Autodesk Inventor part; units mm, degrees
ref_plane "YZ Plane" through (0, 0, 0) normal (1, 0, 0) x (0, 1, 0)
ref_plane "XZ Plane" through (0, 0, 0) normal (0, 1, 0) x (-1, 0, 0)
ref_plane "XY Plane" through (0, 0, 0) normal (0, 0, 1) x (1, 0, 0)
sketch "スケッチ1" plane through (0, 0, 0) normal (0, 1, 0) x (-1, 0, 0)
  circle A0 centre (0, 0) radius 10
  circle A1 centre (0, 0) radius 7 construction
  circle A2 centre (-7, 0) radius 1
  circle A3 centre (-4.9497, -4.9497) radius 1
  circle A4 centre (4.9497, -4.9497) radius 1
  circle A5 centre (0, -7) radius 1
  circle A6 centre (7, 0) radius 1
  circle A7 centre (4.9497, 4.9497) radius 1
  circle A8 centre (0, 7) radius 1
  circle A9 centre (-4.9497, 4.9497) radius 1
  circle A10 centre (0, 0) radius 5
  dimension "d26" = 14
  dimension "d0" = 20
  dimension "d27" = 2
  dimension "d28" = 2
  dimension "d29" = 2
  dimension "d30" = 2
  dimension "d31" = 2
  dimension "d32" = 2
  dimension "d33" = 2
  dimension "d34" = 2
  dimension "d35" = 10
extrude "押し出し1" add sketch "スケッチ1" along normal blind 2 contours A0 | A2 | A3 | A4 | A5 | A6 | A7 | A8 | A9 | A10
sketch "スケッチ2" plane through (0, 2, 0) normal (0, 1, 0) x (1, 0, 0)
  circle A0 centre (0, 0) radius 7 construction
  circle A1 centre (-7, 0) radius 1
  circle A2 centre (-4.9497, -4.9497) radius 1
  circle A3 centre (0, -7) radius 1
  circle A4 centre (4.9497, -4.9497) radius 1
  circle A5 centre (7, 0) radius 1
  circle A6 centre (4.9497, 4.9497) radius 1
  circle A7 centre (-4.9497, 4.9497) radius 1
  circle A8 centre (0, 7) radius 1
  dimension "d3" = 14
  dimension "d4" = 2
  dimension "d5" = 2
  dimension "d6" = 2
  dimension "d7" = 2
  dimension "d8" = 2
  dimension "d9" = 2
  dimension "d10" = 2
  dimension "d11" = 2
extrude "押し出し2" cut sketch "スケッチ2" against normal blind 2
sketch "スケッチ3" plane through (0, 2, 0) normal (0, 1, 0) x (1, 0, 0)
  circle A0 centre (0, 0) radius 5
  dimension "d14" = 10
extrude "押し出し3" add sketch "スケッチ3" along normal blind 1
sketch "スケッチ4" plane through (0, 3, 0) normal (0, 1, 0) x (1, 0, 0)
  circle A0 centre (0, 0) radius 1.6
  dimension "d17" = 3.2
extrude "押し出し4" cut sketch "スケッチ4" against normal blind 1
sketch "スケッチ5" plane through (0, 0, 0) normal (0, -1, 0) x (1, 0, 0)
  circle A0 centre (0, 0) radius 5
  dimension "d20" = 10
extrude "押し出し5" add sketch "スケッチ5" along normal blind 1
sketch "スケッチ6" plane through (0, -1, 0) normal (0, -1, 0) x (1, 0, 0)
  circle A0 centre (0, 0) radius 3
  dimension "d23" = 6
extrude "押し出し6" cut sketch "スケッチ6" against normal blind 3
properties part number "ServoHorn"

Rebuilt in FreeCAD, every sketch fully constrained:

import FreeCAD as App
import Part
import Sketcher
from FreeCAD import Vector

doc = App.newDocument("Part")
body = doc.addObject("PartDesign::Body", "Body")

sketch1 = body.newObject("Sketcher::SketchObject", "Sketch")
sketch1.AttachmentSupport = (doc.getObject("XZ_Plane"), [""])
sketch1.MapMode = "FlatFace"
sketch1.addGeometry(Part.Circle(Vector(0, 0, 0), Vector(0, 0, 1), 10), False)
sketch1.addConstraint([
    Sketcher.Constraint("Coincident", 0, 3, -1, 1),
    Sketcher.Constraint("Diameter", 0, 20.0),
])
pad1 = body.newObject("PartDesign::Pad", "Pad")
pad1.Profile = sketch1
pad1.Length = 2
pad1.Reversed = True

sketch2 = body.newObject("Sketcher::SketchObject", "Sketch001")
sketch2.AttachmentSupport = (doc.getObject("XZ_Plane"), [""])
sketch2.MapMode = "FlatFace"
sketch2.AttachmentOffset = App.Placement(Vector(0, 0, -2), App.Rotation())
sketch2.addGeometry([
    Part.Circle(Vector(-7, 0, 0), Vector(0, 0, 1), 1),
    Part.Circle(Vector(-4.9, 4.9, 0), Vector(0, 0, 1), 1),
    Part.Circle(Vector(0, 7, 0), Vector(0, 0, 1), 1),
    Part.Circle(Vector(4.9, 4.9, 0), Vector(0, 0, 1), 1),
    Part.Circle(Vector(7, 0, 0), Vector(0, 0, 1), 1),
    Part.Circle(Vector(4.9, -4.9, 0), Vector(0, 0, 1), 1),
    Part.Circle(Vector(-4.9, -4.9, 0), Vector(0, 0, 1), 1),
    Part.Circle(Vector(0, -7, 0), Vector(0, 0, 1), 1),
], False)
sketch2.addConstraint([
    Sketcher.Constraint("Equal", 0, 1),
    Sketcher.Constraint("Equal", 1, 2),
    Sketcher.Constraint("Equal", 2, 3),
    Sketcher.Constraint("Equal", 3, 4),
    Sketcher.Constraint("Equal", 4, 5),
    Sketcher.Constraint("Equal", 5, 6),
    Sketcher.Constraint("Equal", 6, 7),
    Sketcher.Constraint("Symmetric", 0, 3, 4, 3, -1, 1),
    Sketcher.Constraint("Symmetric", 1, 3, 5, 3, -1, 1),
    Sketcher.Constraint("Symmetric", 3, 3, 6, 3, -1, 1),
    Sketcher.Constraint("Symmetric", 2, 3, 7, 3, -1, 1),
    Sketcher.Constraint("Symmetric", 1, 3, 3, 3, -2),
    Sketcher.Constraint("PointOnObject", 0, 3, -1),
    Sketcher.Constraint("PointOnObject", 2, 3, -2),
    Sketcher.Constraint("Diameter", 0, 2.0),
    Sketcher.Constraint("DistanceX", 0, 3, 4, 3, 14.0),
    Sketcher.Constraint("DistanceY", -1, 1, 2, 3, 7.0),
    Sketcher.Constraint("DistanceX", 1, 3, -1, 1, 4.9497),
    Sketcher.Constraint("DistanceY", -1, 1, 1, 3, 4.9497),
])
pocket1 = body.newObject("PartDesign::Pocket", "Pocket")
pocket1.Profile = sketch2
pocket1.Length = 2
pocket1.Reversed = True

sketch3 = body.newObject("Sketcher::SketchObject", "Sketch002")
sketch3.AttachmentSupport = (doc.getObject("XZ_Plane"), [""])
sketch3.MapMode = "FlatFace"
sketch3.AttachmentOffset = App.Placement(Vector(0, 0, -2), App.Rotation())
sketch3.addGeometry(Part.Circle(Vector(0, 0, 0), Vector(0, 0, 1), 5), False)
sketch3.addConstraint([
    Sketcher.Constraint("Coincident", 0, 3, -1, 1),
    Sketcher.Constraint("Diameter", 0, 10.0),
])
pad2 = body.newObject("PartDesign::Pad", "Pad001")
pad2.Profile = sketch3
pad2.Length = 1
pad2.Reversed = True

sketch4 = body.newObject("Sketcher::SketchObject", "Sketch003")
sketch4.AttachmentSupport = (doc.getObject("XZ_Plane"), [""])
sketch4.MapMode = "FlatFace"
sketch4.AttachmentOffset = App.Placement(Vector(0, 0, -3), App.Rotation())
sketch4.addGeometry(Part.Circle(Vector(0, 0, 0), Vector(0, 0, 1), 1.6), False)
sketch4.addConstraint([
    Sketcher.Constraint("Coincident", 0, 3, -1, 1),
    Sketcher.Constraint("Diameter", 0, 3.2),
])
pocket2 = body.newObject("PartDesign::Pocket", "Pocket001")
pocket2.Profile = sketch4
pocket2.Length = 1
pocket2.Reversed = True

sketch5 = body.newObject("Sketcher::SketchObject", "Sketch004")
sketch5.AttachmentSupport = (doc.getObject("XZ_Plane"), [""])
sketch5.MapMode = "FlatFace"
sketch5.addGeometry(Part.Circle(Vector(0, 0, 0), Vector(0, 0, 1), 5), False)
sketch5.addConstraint([
    Sketcher.Constraint("Coincident", 0, 3, -1, 1),
    Sketcher.Constraint("Diameter", 0, 10.0),
])
pad3 = body.newObject("PartDesign::Pad", "Pad002")
pad3.Profile = sketch5
pad3.Length = 1

sketch6 = body.newObject("Sketcher::SketchObject", "Sketch005")
sketch6.AttachmentSupport = (doc.getObject("XZ_Plane"), [""])
sketch6.MapMode = "FlatFace"
sketch6.AttachmentOffset = App.Placement(Vector(0, 0, 1), App.Rotation())
sketch6.addGeometry(Part.Circle(Vector(0, 0, 0), Vector(0, 0, 1), 3), False)
sketch6.addConstraint([
    Sketcher.Constraint("Coincident", 0, 3, -1, 1),
    Sketcher.Constraint("Diameter", 0, 6.0),
])
pocket3 = body.newObject("PartDesign::Pocket", "Pocket002")
pocket3.Profile = sketch6
pocket3.Length = 3

doc.recompute()
